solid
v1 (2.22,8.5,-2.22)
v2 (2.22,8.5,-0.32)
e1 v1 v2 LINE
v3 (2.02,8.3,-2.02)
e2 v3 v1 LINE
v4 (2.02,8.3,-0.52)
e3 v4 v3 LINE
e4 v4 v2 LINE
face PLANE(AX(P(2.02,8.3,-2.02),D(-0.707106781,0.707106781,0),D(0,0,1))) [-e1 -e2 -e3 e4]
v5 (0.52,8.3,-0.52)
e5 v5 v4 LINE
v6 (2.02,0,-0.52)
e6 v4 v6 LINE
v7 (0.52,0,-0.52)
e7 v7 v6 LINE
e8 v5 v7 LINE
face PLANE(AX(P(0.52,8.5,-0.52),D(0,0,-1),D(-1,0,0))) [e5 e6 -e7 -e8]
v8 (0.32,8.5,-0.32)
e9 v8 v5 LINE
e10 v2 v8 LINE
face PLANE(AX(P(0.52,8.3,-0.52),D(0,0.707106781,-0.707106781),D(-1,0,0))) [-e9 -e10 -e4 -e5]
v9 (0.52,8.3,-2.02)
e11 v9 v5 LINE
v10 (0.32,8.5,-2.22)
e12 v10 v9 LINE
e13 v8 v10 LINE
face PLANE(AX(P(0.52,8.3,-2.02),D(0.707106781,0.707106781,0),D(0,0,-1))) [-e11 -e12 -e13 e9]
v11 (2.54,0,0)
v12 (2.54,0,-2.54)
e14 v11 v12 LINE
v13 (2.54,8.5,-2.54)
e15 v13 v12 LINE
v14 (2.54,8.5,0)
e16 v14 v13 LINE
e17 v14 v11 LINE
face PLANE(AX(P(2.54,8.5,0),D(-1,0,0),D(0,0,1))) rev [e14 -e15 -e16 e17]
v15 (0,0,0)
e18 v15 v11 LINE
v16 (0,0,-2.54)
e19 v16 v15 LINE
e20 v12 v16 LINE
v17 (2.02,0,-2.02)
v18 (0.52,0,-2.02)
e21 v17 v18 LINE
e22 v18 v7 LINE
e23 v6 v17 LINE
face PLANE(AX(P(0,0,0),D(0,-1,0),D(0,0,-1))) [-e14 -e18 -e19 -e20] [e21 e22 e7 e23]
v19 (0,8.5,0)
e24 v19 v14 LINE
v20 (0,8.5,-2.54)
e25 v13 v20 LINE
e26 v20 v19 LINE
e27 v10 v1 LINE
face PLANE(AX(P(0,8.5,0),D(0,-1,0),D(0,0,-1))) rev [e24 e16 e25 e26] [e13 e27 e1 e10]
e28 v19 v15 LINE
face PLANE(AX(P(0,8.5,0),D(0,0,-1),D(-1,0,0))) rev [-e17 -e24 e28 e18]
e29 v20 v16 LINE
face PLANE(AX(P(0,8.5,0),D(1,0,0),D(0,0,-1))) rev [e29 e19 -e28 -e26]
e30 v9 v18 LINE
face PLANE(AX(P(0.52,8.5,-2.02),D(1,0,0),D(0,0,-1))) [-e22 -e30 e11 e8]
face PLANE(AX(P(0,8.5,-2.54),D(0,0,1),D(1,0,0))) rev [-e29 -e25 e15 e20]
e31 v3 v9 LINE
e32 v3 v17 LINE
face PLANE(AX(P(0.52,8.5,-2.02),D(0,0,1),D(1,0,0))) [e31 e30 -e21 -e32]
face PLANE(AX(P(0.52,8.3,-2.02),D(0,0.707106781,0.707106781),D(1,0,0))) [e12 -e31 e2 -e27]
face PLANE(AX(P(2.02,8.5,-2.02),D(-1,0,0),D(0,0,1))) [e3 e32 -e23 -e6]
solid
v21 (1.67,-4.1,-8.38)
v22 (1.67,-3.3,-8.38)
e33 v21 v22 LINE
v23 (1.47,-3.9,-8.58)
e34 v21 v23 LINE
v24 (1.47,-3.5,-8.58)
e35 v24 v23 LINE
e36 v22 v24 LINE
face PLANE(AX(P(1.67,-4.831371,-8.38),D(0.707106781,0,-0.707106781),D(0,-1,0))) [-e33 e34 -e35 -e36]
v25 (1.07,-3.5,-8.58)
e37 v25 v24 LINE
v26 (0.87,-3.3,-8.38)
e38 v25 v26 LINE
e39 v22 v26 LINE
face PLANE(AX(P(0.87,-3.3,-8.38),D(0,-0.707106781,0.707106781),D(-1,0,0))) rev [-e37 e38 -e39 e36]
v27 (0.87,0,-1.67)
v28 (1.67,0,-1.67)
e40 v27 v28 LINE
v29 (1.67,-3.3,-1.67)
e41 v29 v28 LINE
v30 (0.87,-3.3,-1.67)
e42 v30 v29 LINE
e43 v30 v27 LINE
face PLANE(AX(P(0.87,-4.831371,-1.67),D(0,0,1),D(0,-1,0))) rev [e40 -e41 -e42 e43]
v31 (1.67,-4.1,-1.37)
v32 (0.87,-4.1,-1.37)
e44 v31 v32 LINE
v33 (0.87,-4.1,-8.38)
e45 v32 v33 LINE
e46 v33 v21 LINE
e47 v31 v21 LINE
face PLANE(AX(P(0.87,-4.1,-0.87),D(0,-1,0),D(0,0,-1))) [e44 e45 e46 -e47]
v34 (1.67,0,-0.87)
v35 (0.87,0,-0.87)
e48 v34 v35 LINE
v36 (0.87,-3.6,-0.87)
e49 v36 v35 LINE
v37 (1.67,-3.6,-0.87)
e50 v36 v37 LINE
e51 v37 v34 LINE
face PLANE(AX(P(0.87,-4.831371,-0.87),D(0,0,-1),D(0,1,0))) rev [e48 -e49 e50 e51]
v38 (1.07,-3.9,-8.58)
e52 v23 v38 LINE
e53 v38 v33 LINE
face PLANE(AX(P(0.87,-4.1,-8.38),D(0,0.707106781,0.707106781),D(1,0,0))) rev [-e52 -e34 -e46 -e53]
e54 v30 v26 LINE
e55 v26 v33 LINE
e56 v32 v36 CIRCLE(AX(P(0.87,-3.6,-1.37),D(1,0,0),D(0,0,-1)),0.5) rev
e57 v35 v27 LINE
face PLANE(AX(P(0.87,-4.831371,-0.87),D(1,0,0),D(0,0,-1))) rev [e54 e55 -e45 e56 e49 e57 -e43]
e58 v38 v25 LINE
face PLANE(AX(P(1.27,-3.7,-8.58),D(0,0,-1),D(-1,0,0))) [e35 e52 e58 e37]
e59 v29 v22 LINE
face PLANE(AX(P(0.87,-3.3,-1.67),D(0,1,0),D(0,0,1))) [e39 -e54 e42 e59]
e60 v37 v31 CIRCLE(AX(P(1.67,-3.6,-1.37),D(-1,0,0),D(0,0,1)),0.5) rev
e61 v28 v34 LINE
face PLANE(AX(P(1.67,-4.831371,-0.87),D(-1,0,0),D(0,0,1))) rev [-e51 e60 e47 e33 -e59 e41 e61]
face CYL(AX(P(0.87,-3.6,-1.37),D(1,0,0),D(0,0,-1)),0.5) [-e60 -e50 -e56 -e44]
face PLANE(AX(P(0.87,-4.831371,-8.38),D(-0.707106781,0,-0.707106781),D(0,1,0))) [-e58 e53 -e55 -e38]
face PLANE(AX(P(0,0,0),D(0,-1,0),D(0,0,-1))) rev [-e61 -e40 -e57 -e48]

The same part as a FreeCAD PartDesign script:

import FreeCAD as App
import Part
import Sketcher


def edges_at(feature, points):
    """Names of the edges that pass closest to the given points."""
    edges = feature.Shape.Edges
    near = lambda p: min(range(len(edges)), key=lambda i: edges[i].distToShape(Part.Vertex(*p))[0])
    return sorted({f"Edge{near(p) + 1}" for p in points})

doc = App.newDocument("Part")
body = doc.addObject("PartDesign::Body", "Body")

sketch1 = body.newObject("Sketcher::SketchObject", "Sketch")
sketch1.AttachmentSupport = (doc.getObject("XZ_Plane"), [""])
sketch1.MapMode = "FlatFace"
sketch1.addGeometry(Part.LineSegment(App.Vector(0, -2.54, 0), App.Vector(0, 0, 0)), False)
sketch1.addGeometry(Part.LineSegment(App.Vector(0, 0, 0), App.Vector(2.54, 0, 0)), False)
sketch1.addGeometry(Part.LineSegment(App.Vector(2.54, 0, 0), App.Vector(2.54, -2.54, 0)), False)
sketch1.addGeometry(Part.LineSegment(App.Vector(2.54, -2.54, 0), App.Vector(0, -2.54, 0)), False)
sketch1.addGeometry(Part.LineSegment(App.Vector(2.02, -0.52, 0), App.Vector(0.52, -0.52, 0)), False)
sketch1.addGeometry(Part.LineSegment(App.Vector(0.52, -0.52, 0), App.Vector(0.52, -2.02, 0)), False)
sketch1.addGeometry(Part.LineSegment(App.Vector(0.52, -2.02, 0), App.Vector(2.02, -2.02, 0)), False)
sketch1.addGeometry(Part.LineSegment(App.Vector(2.02, -2.02, 0), App.Vector(2.02, -0.52, 0)), False)
sketch1.addConstraint(Sketcher.Constraint("Coincident", 0, 2, 1, 1))
sketch1.addConstraint(Sketcher.Constraint("Coincident", 1, 2, 2, 1))
sketch1.addConstraint(Sketcher.Constraint("Coincident", 2, 2, 3, 1))
sketch1.addConstraint(Sketcher.Constraint("Coincident", 3, 2, 0, 1))
sketch1.addConstraint(Sketcher.Constraint("Coincident", 4, 2, 5, 1))
sketch1.addConstraint(Sketcher.Constraint("Coincident", 5, 2, 6, 1))
sketch1.addConstraint(Sketcher.Constraint("Coincident", 6, 2, 7, 1))
sketch1.addConstraint(Sketcher.Constraint("Coincident", 7, 2, 4, 1))
sketch1.addConstraint(Sketcher.Constraint("Vertical", 0))
sketch1.addConstraint(Sketcher.Constraint("Horizontal", 1))
sketch1.addConstraint(Sketcher.Constraint("Vertical", 2))
sketch1.addConstraint(Sketcher.Constraint("Horizontal", 3))
sketch1.addConstraint(Sketcher.Constraint("Horizontal", 4))
sketch1.addConstraint(Sketcher.Constraint("Vertical", 5))
sketch1.addConstraint(Sketcher.Constraint("Horizontal", 6))
sketch1.addConstraint(Sketcher.Constraint("Vertical", 7))
sketch1.addConstraint(Sketcher.Constraint("Coincident", 0, 2, -1, 1))
sketch1.addConstraint(Sketcher.Constraint("Equal", 3, 0))
sketch1.addConstraint(Sketcher.Constraint("Equal", 6, 5))
sketch1.addConstraint(Sketcher.Constraint("DistanceX", 4, 2, 4, 1, 1.5))
sketch1.addConstraint(Sketcher.Constraint("DistanceX", 1, 1, 1, 2, 2.54))
sketch1.addConstraint(Sketcher.Constraint("DistanceX", -1, 1, 4, 2, 0.52))
sketch1.addConstraint(Sketcher.Constraint("DistanceY", 4, 2, -1, 1, 0.52))
pad1 = body.newObject("PartDesign::Pad", "Pad")
pad1.Profile = sketch1
pad1.Length = 8.5
pad1.Reversed = True
doc.recompute()

chamfer = body.newObject("PartDesign::Chamfer", "Chamfer")
chamfer.Base = (pad1, edges_at(pad1, [
    (2.02, 8.5, -1.27),
    (1.27, 8.5, -2.02),
    (0.52, 8.5, -1.27),
    (1.27, 8.5, -0.52),
]))
chamfer.Size = 0.2
body2 = doc.addObject("PartDesign::Body", "Body001")

sketch2 = body2.newObject("Sketcher::SketchObject", "Sketch001")
sketch2.AttachmentSupport = (doc.getObject("XZ_Plane001"), [""])
sketch2.MapMode = "FlatFace"
sketch2.addGeometry(Part.LineSegment(App.Vector(0.87, -0.87, 0), App.Vector(0.87, -1.67, 0)), False)
sketch2.addGeometry(Part.LineSegment(App.Vector(0.87, -1.67, 0), App.Vector(1.67, -1.67, 0)), False)
sketch2.addGeometry(Part.LineSegment(App.Vector(1.67, -1.67, 0), App.Vector(1.67, -0.87, 0)), False)
sketch2.addGeometry(Part.LineSegment(App.Vector(1.67, -0.87, 0), App.Vector(0.87, -0.87, 0)), False)
sketch2.addConstraint(Sketcher.Constraint("Coincident", 0, 2, 1, 1))
sketch2.addConstraint(Sketcher.Constraint("Coincident", 1, 2, 2, 1))
sketch2.addConstraint(Sketcher.Constraint("Coincident", 2, 2, 3, 1))
sketch2.addConstraint(Sketcher.Constraint("Coincident", 3, 2, 0, 1))
sketch2.addConstraint(Sketcher.Constraint("Vertical", 0))
sketch2.addConstraint(Sketcher.Constraint("Horizontal", 1))
sketch2.addConstraint(Sketcher.Constraint("Vertical", 2))
sketch2.addConstraint(Sketcher.Constraint("Horizontal", 3))
sketch2.addConstraint(Sketcher.Constraint("Equal", 3, 0))
sketch2.addConstraint(Sketcher.Constraint("DistanceX", 1, 1, 1, 2, 0.8))
sketch2.addConstraint(Sketcher.Constraint("DistanceX", -1, 1, 0, 2, 0.87))
sketch2.addConstraint(Sketcher.Constraint("DistanceY", 0, 2, -1, 1, 1.67))

sketch3 = body2.newObject("Sketcher::SketchObject", "Sketch002")
sketch3.AttachmentSupport = (doc.getObject("YZ_Plane001"), [""])
sketch3.MapMode = "FlatFace"
sketch3.AttachmentOffset = App.Placement(App.Vector(0, 0, 1.27), App.Rotation())
sketch3.addGeometry(Part.LineSegment(App.Vector(0, -1.27, 0), App.Vector(-3.7, -1.27, 0)), False)
sketch3.addGeometry(Part.LineSegment(App.Vector(-3.7, -1.27, 0), App.Vector(-3.7, -8.58, 0)), False)
sketch3.addConstraint(Sketcher.Constraint("Coincident", 0, 2, 1, 1))
sketch3.addConstraint(Sketcher.Constraint("Horizontal", 0))
sketch3.addConstraint(Sketcher.Constraint("Vertical", 1))
sketch3.addConstraint(Sketcher.Constraint("PointOnObject", 0, 1, -2))
sketch3.addConstraint(Sketcher.Constraint("DistanceX", 0, 2, 0, 1, 3.7))
sketch3.addConstraint(Sketcher.Constraint("DistanceY", 1, 2, 1, 1, 7.31))
sketch3.addConstraint(Sketcher.Constraint("DistanceY", 0, 1, -1, 1, 1.27))
doc.recompute()

additivepipe = body2.newObject("PartDesign::AdditivePipe", "AdditivePipe")
additivepipe.Profile = sketch2
additivepipe.Spine = (sketch3, ["Edge1", "Edge2"])
additivepipe.Transition = "Right corner"
doc.recompute()

chamfer2 = body2.newObject("PartDesign::Chamfer", "Chamfer001")
chamfer2.Base = (additivepipe, edges_at(additivepipe, [
    (0.87, -3.7, -8.58),
    (1.27, -4.1, -8.58),
    (1.67, -3.7, -8.58),
    (1.27, -3.3, -8.58),
]))
chamfer2.Size = 0.2
doc.recompute()

fillet = body2.newObject("PartDesign::Fillet", "Fillet")
fillet.Base = (chamfer2, edges_at(chamfer2, [(1.27, -4.1, -0.87)]))
fillet.Radius = 0.5

doc.recompute()
